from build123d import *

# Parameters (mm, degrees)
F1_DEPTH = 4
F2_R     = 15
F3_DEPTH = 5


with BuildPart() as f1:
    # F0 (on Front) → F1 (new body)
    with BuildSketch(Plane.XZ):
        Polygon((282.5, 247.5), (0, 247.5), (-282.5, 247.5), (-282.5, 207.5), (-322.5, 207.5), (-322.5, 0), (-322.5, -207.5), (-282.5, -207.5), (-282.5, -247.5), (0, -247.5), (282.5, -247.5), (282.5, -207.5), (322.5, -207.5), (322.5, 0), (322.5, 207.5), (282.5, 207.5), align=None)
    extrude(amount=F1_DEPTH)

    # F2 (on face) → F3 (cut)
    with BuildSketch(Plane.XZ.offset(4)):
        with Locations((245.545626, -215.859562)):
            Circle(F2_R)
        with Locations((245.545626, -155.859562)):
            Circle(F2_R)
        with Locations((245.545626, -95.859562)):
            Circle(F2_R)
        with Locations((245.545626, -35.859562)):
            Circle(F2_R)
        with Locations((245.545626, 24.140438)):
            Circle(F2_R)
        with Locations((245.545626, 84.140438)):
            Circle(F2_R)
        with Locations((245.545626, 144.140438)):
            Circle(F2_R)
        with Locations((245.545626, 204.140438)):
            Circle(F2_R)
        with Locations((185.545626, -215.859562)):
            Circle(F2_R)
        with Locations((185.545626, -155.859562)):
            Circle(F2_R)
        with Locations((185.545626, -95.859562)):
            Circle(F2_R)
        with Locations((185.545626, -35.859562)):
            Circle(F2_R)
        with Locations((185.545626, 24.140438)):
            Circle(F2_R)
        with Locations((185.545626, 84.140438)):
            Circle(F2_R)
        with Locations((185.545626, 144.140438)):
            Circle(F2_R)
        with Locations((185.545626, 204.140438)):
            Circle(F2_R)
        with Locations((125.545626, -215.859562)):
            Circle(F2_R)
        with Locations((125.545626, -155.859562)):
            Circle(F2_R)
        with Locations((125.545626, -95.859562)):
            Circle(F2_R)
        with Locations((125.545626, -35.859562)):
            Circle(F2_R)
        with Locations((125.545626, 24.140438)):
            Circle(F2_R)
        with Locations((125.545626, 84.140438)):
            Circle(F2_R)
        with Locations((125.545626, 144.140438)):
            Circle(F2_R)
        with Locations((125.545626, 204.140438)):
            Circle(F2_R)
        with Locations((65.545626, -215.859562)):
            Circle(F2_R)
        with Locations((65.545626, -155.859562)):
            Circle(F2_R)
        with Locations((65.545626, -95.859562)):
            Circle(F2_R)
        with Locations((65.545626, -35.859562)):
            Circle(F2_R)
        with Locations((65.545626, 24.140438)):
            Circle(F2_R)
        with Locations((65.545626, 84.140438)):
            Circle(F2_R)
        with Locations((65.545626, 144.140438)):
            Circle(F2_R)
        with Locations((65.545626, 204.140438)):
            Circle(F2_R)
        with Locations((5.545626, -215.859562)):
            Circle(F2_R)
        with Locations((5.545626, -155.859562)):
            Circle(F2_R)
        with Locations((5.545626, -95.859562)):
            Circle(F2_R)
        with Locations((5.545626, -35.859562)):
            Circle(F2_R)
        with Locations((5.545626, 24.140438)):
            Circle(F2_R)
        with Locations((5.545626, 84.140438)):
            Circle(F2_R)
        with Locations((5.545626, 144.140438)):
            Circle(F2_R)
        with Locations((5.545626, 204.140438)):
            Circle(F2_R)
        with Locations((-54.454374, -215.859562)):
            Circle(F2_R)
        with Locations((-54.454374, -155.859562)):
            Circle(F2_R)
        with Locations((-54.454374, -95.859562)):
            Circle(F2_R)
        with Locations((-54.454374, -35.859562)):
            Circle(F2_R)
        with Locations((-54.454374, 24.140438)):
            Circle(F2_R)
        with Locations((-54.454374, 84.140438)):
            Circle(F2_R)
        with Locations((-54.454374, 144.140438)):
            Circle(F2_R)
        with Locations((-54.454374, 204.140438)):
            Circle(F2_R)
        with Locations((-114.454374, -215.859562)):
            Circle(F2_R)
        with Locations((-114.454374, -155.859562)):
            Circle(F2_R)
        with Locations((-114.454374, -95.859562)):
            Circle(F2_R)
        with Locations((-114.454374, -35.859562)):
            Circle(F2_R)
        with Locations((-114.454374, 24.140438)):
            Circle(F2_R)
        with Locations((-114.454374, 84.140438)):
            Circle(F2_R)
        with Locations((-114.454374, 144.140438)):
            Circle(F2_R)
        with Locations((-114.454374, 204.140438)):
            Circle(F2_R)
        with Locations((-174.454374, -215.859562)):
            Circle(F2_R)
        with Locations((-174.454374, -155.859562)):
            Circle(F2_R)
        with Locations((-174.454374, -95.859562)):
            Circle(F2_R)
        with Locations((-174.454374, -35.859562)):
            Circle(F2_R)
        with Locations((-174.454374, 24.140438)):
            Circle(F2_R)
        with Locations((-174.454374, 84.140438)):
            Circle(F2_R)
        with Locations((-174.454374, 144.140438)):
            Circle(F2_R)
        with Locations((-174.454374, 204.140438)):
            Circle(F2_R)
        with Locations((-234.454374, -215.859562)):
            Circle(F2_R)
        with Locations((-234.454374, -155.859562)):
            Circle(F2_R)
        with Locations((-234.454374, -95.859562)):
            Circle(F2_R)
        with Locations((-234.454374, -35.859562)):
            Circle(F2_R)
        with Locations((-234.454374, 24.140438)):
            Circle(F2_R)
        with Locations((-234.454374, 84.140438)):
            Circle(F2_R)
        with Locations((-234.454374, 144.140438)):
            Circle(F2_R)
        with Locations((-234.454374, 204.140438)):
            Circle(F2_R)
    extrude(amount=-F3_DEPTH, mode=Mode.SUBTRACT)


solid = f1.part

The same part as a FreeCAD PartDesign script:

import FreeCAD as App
import Part
import Sketcher

V = App.Vector

doc = App.newDocument("Part")
body = doc.addObject("PartDesign::Body", "Body")

# Sketch on XZ plane
sketch1 = body.newObject("Sketcher::SketchObject", "Sketch")
sketch1.AttachmentSupport = (doc.getObject("XZ_Plane"), [""])
sketch1.MapMode = "FlatFace"
sketch1.addGeometry([
    Part.LineSegment(V(282.5, 247.5, 0), V(-282.5, 247.5, 0)),  # 0
    Part.LineSegment(V(-282.5, 247.5, 0), V(-282.5, 207.5, 0)),  # 1
    Part.LineSegment(V(-282.5, 207.5, 0), V(-322.5, 207.5, 0)),  # 2
    Part.LineSegment(V(-322.5, 207.5, 0), V(-322.5, -207.5, 0)),  # 3
    Part.LineSegment(V(-322.5, -207.5, 0), V(-282.5, -207.5, 0)),  # 4
    Part.LineSegment(V(-282.5, -207.5, 0), V(-282.5, -247.5, 0)),  # 5
    Part.LineSegment(V(-282.5, -247.5, 0), V(282.5, -247.5, 0)),  # 6
    Part.LineSegment(V(282.5, -247.5, 0), V(282.5, -207.5, 0)),  # 7
    Part.LineSegment(V(282.5, -207.5, 0), V(322.5, -207.5, 0)),  # 8
    Part.LineSegment(V(322.5, -207.5, 0), V(322.5, 207.5, 0)),  # 9
    Part.LineSegment(V(322.5, 207.5, 0), V(282.5, 207.5, 0)),  # 10
    Part.LineSegment(V(282.5, 207.5, 0), V(282.5, 247.5, 0)),  # 11
], False)
sketch1.addConstraint([
    Sketcher.Constraint("Coincident", 0, 2, 1, 1),
    Sketcher.Constraint("Coincident", 1, 2, 2, 1),
    Sketcher.Constraint("Coincident", 2, 2, 3, 1),
    Sketcher.Constraint("Coincident", 3, 2, 4, 1),
    Sketcher.Constraint("Coincident", 4, 2, 5, 1),
    Sketcher.Constraint("Coincident", 5, 2, 6, 1),
    Sketcher.Constraint("Coincident", 6, 2, 7, 1),
    Sketcher.Constraint("Coincident", 7, 2, 8, 1),
    Sketcher.Constraint("Coincident", 8, 2, 9, 1),
    Sketcher.Constraint("Coincident", 9, 2, 10, 1),
    Sketcher.Constraint("Coincident", 10, 2, 11, 1),
    Sketcher.Constraint("Coincident", 11, 2, 0, 1),
    Sketcher.Constraint("Horizontal", 0),
    Sketcher.Constraint("Vertical", 1),
    Sketcher.Constraint("Horizontal", 2),
    Sketcher.Constraint("Vertical", 3),
    Sketcher.Constraint("Horizontal", 4),
    Sketcher.Constraint("Vertical", 5),
    Sketcher.Constraint("Horizontal", 6),
    Sketcher.Constraint("Vertical", 7),
    Sketcher.Constraint("Horizontal", 8),
    Sketcher.Constraint("Vertical", 9),
    Sketcher.Constraint("Horizontal", 10),
    Sketcher.Constraint("Vertical", 11),
    Sketcher.Constraint("Symmetric", 0, 2, 6, 2, -1, 1),
    Sketcher.Constraint("Symmetric", 2, 2, 8, 2, -1, 1),
    Sketcher.Constraint("Symmetric", 4, 2, 10, 2, -1, 1),
    Sketcher.Constraint("Symmetric", 4, 2, 7, 2, -2),
    Sketcher.Constraint("Equal", 10, 1),
    Sketcher.Constraint("DistanceX", 0, 2, 0, 1, 565.0),
    Sketcher.Constraint("DistanceX", 2, 2, 2, 1, 40.0),
    Sketcher.Constraint("DistanceY", 3, 2, 3, 1, 415.0),
])
pad1 = body.newObject("PartDesign::Pad", "Pad")
pad1.Profile = sketch1
pad1.Length = 4

# Sketch on XZ plane
sketch2 = body.newObject("Sketcher::SketchObject", "Sketch001")
sketch2.AttachmentSupport = (doc.getObject("XZ_Plane"), [""])
sketch2.MapMode = "FlatFace"
sketch2.AttachmentOffset = App.Placement(V(0, 0, 4), App.Rotation())
sketch2.addGeometry([
    Part.Circle(V(245.545626, -215.859562, 0), V(0, 0, 1), 15),  # 0
    Part.Circle(V(245.545626, -155.859562, 0), V(0, 0, 1), 15),  # 1
    Part.Circle(V(245.545626, -95.859562, 0), V(0, 0, 1), 15),  # 2
    Part.Circle(V(245.545626, -35.859562, 0), V(0, 0, 1), 15),  # 3
    Part.Circle(V(245.545626, 24.140438, 0), V(0, 0, 1), 15),  # 4
    Part.Circle(V(245.545626, 84.140438, 0), V(0, 0, 1), 15),  # 5
    Part.Circle(V(245.545626, 144.140438, 0), V(0, 0, 1), 15),  # 6
    Part.Circle(V(245.545626, 204.140438, 0), V(0, 0, 1), 15),  # 7
    Part.Circle(V(185.545626, -215.859562, 0), V(0, 0, 1), 15),  # 8
    Part.Circle(V(185.545626, -155.859562, 0), V(0, 0, 1), 15),  # 9
    Part.Circle(V(185.545626, -95.859562, 0), V(0, 0, 1), 15),  # 10
    Part.Circle(V(185.545626, -35.859562, 0), V(0, 0, 1), 15),  # 11
    Part.Circle(V(185.545626, 24.140438, 0), V(0, 0, 1), 15),  # 12
    Part.Circle(V(185.545626, 84.140438, 0), V(0, 0, 1), 15),  # 13
    Part.Circle(V(185.545626, 144.140438, 0), V(0, 0, 1), 15),  # 14
    Part.Circle(V(185.545626, 204.140438, 0), V(0, 0, 1), 15),  # 15
    Part.Circle(V(125.545626, -215.859562, 0), V(0, 0, 1), 15),  # 16
    Part.Circle(V(125.545626, -155.859562, 0), V(0, 0, 1), 15),  # 17
    Part.Circle(V(125.545626, -95.859562, 0), V(0, 0, 1), 15),  # 18
    Part.Circle(V(125.545626, -35.859562, 0), V(0, 0, 1), 15),  # 19
    Part.Circle(V(125.545626, 24.140438, 0), V(0, 0, 1), 15),  # 20
    Part.Circle(V(125.545626, 84.140438, 0), V(0, 0, 1), 15),  # 21
    Part.Circle(V(125.545626, 144.140438, 0), V(0, 0, 1), 15),  # 22
    Part.Circle(V(125.545626, 204.140438, 0), V(0, 0, 1), 15),  # 23
    Part.Circle(V(65.545626, -215.859562, 0), V(0, 0, 1), 15),  # 24
    Part.Circle(V(65.545626, -155.859562, 0), V(0, 0, 1), 15),  # 25
    Part.Circle(V(65.545626, -95.859562, 0), V(0, 0, 1), 15),  # 26
    Part.Circle(V(65.545626, -35.859562, 0), V(0, 0, 1), 15),  # 27
    Part.Circle(V(65.545626, 24.140438, 0), V(0, 0, 1), 15),  # 28
    Part.Circle(V(65.545626, 84.140438, 0), V(0, 0, 1), 15),  # 29
    Part.Circle(V(65.545626, 144.140438, 0), V(0, 0, 1), 15),  # 30
    Part.Circle(V(65.545626, 204.140438, 0), V(0, 0, 1), 15),  # 31
    Part.Circle(V(5.545626, -215.859562, 0), V(0, 0, 1), 15),  # 32
    Part.Circle(V(5.545626, -155.859562, 0), V(0, 0, 1), 15),  # 33
    Part.Circle(V(5.545626, -95.859562, 0), V(0, 0, 1), 15),  # 34
    Part.Circle(V(5.545626, -35.859562, 0), V(0, 0, 1), 15),  # 35
    Part.Circle(V(5.545626, 24.140438, 0), V(0, 0, 1), 15),  # 36
    Part.Circle(V(5.545626, 84.140438, 0), V(0, 0, 1), 15),  # 37
    Part.Circle(V(5.545626, 144.140438, 0), V(0, 0, 1), 15),  # 38
    Part.Circle(V(5.545626, 204.140438, 0), V(0, 0, 1), 15),  # 39
    Part.Circle(V(-54.454374, -215.859562, 0), V(0, 0, 1), 15),  # 40
    Part.Circle(V(-54.454374, -155.859562, 0), V(0, 0, 1), 15),  # 41
    Part.Circle(V(-54.454374, -95.859562, 0), V(0, 0, 1), 15),  # 42
    Part.Circle(V(-54.454374, -35.859562, 0), V(0, 0, 1), 15),  # 43
    Part.Circle(V(-54.454374, 24.140438, 0), V(0, 0, 1), 15),  # 44
    Part.Circle(V(-54.454374, 84.140438, 0), V(0, 0, 1), 15),  # 45
    Part.Circle(V(-54.454374, 144.140438, 0), V(0, 0, 1), 15),  # 46
    Part.Circle(V(-54.454374, 204.140438, 0), V(0, 0, 1), 15),  # 47
    Part.Circle(V(-114.454374, -215.859562, 0), V(0, 0, 1), 15),  # 48
    Part.Circle(V(-114.454374, -155.859562, 0), V(0, 0, 1), 15),  # 49
    Part.Circle(V(-114.454374, -95.859562, 0), V(0, 0, 1), 15),  # 50
    Part.Circle(V(-114.454374, -35.859562, 0), V(0, 0, 1), 15),  # 51
    Part.Circle(V(-114.454374, 24.140438, 0), V(0, 0, 1), 15),  # 52
    Part.Circle(V(-114.454374, 84.140438, 0), V(0, 0, 1), 15),  # 53
    Part.Circle(V(-114.454374, 144.140438, 0), V(0, 0, 1), 15),  # 54
    Part.Circle(V(-114.454374, 204.140438, 0), V(0, 0, 1), 15),  # 55
    Part.Circle(V(-174.454374, -215.859562, 0), V(0, 0, 1), 15),  # 56
    Part.Circle(V(-174.454374, -155.859562, 0), V(0, 0, 1), 15),  # 57
    Part.Circle(V(-174.454374, -95.859562, 0), V(0, 0, 1), 15),  # 58
    Part.Circle(V(-174.454374, -35.859562, 0), V(0, 0, 1), 15),  # 59
    Part.Circle(V(-174.454374, 24.140438, 0), V(0, 0, 1), 15),  # 60
    Part.Circle(V(-174.454374, 84.140438, 0), V(0, 0, 1), 15),  # 61
    Part.Circle(V(-174.454374, 144.140438, 0), V(0, 0, 1), 15),  # 62
    Part.Circle(V(-174.454374, 204.140438, 0), V(0, 0, 1), 15),  # 63
    Part.Circle(V(-234.454374, -215.859562, 0), V(0, 0, 1), 15),  # 64
    Part.Circle(V(-234.454374, -155.859562, 0), V(0, 0, 1), 15),  # 65
    Part.Circle(V(-234.454374, -95.859562, 0), V(0, 0, 1), 15),  # 66
    Part.Circle(V(-234.454374, -35.859562, 0), V(0, 0, 1), 15),  # 67
    Part.Circle(V(-234.454374, 24.140438, 0), V(0, 0, 1), 15),  # 68
    Part.Circle(V(-234.454374, 84.140438, 0), V(0, 0, 1), 15),  # 69
    Part.Circle(V(-234.454374, 144.140438, 0), V(0, 0, 1), 15),  # 70
    Part.Circle(V(-234.454374, 204.140438, 0), V(0, 0, 1), 15),  # 71
], False)
sketch2.addConstraint([
    Sketcher.Constraint("Equal", 0, 1),
    Sketcher.Constraint("Equal", 1, 2),
    Sketcher.Constraint("Equal", 2, 3),
    Sketcher.Constraint("Equal", 3, 4),
    Sketcher.Constraint("Equal", 4, 5),
    Sketcher.Constraint("Equal", 5, 6),
    Sketcher.Constraint("Equal", 6, 7),
    Sketcher.Constraint("Equal", 7, 8),
    Sketcher.Constraint("Equal", 8, 9),
    Sketcher.Constraint("Equal", 9, 10),
    Sketcher.Constraint("Equal", 10, 11),
    Sketcher.Constraint("Equal", 11, 12),
    Sketcher.Constraint("Equal", 12, 13),
    Sketcher.Constraint("Equal", 13, 14),
    Sketcher.Constraint("Equal", 14, 15),
    Sketcher.Constraint("Equal", 15, 16),
    Sketcher.Constraint("Equal", 16, 17),
    Sketcher.Constraint("Equal", 17, 18),
    Sketcher.Constraint("Equal", 18, 19),
    Sketcher.Constraint("Equal", 19, 20),
    Sketcher.Constraint("Equal", 20, 21),
    Sketcher.Constraint("Equal", 21, 22),
    Sketcher.Constraint("Equal", 22, 23),
    Sketcher.Constraint("Equal", 23, 24),
    Sketcher.Constraint("Equal", 24, 25),
    Sketcher.Constraint("Equal", 25, 26),
    Sketcher.Constraint("Equal", 26, 27),
    Sketcher.Constraint("Equal", 27, 28),
    Sketcher.Constraint("Equal", 28, 29),
    Sketcher.Constraint("Equal", 29, 30),
    Sketcher.Constraint("Equal", 30, 31),
    Sketcher.Constraint("Equal", 31, 32),
    Sketcher.Constraint("Equal", 32, 33),
    Sketcher.Constraint("Equal", 33, 34),
    Sketcher.Constraint("Equal", 34, 35),
    Sketcher.Constraint("Equal", 35, 36),
    Sketcher.Constraint("Equal", 36, 37),
    Sketcher.Constraint("Equal", 37, 38),
    Sketcher.Constraint("Equal", 38, 39),
    Sketcher.Constraint("Equal", 39, 40),
    Sketcher.Constraint("Equal", 40, 41),
    Sketcher.Constraint("Equal", 41, 42),
    Sketcher.Constraint("Equal", 42, 43),
    Sketcher.Constraint("Equal", 43, 44),
    Sketcher.Constraint("Equal", 44, 45),
    Sketcher.Constraint("Equal", 45, 46),
    Sketcher.Constraint("Equal", 46, 47),
    Sketcher.Constraint("Equal", 47, 48),
    Sketcher.Constraint("Equal", 48, 49),
    Sketcher.Constraint("Equal", 49, 50),
    Sketcher.Constraint("Equal", 50, 51),
    Sketcher.Constraint("Equal", 51, 52),
    Sketcher.Constraint("Equal", 52, 53),
    Sketcher.Constraint("Equal", 53, 54),
    Sketcher.Constraint("Equal", 54, 55),
    Sketcher.Constraint("Equal", 55, 56),
    Sketcher.Constraint("Equal", 56, 57),
    Sketcher.Constraint("Equal", 57, 58),
    Sketcher.Constraint("Equal", 58, 59),
    Sketcher.Constraint("Equal", 59, 60),
    Sketcher.Constraint("Equal", 60, 61),
    Sketcher.Constraint("Equal", 61, 62),
    Sketcher.Constraint("Equal", 62, 63),
    Sketcher.Constraint("Equal", 63, 64),
    Sketcher.Constraint("Equal", 64, 65),
    Sketcher.Constraint("Equal", 65, 66),
    Sketcher.Constraint("Equal", 66, 67),
    Sketcher.Constraint("Equal", 67, 68),
    Sketcher.Constraint("Equal", 68, 69),
    Sketcher.Constraint("Equal", 69, 70),
    Sketcher.Constraint("Equal", 70, 71),
    Sketcher.Constraint("Horizontal", 0, 3, 8, 3),
    Sketcher.Constraint("Horizontal", 1, 3, 9, 3),
    Sketcher.Constraint("Horizontal", 2, 3, 10, 3),
    Sketcher.Constraint("Horizontal", 3, 3, 11, 3),
    Sketcher.Constraint("Horizontal", 4, 3, 12, 3),
    Sketcher.Constraint("Horizontal", 5, 3, 13, 3),
    Sketcher.Constraint("Horizontal", 6, 3, 14, 3),
    Sketcher.Constraint("Horizontal", 7, 3, 15, 3),
    Sketcher.Constraint("Horizontal", 8, 3, 16, 3),
    Sketcher.Constraint("Horizontal", 9, 3, 17, 3),
    Sketcher.Constraint("Horizontal", 10, 3, 18, 3),
    Sketcher.Constraint("Horizontal", 11, 3, 19, 3),
    Sketcher.Constraint("Horizontal", 12, 3, 20, 3),
    Sketcher.Constraint("Horizontal", 13, 3, 21, 3),
    Sketcher.Constraint("Horizontal", 14, 3, 22, 3),
    Sketcher.Constraint("Horizontal", 15, 3, 23, 3),
    Sketcher.Constraint("Horizontal", 16, 3, 24, 3),
    Sketcher.Constraint("Horizontal", 17, 3, 25, 3),
    Sketcher.Constraint("Horizontal", 18, 3, 26, 3),
    Sketcher.Constraint("Horizontal", 19, 3, 27, 3),
    Sketcher.Constraint("Horizontal", 20, 3, 28, 3),
    Sketcher.Constraint("Horizontal", 21, 3, 29, 3),
    Sketcher.Constraint("Horizontal", 22, 3, 30, 3),
    Sketcher.Constraint("Horizontal", 23, 3, 31, 3),
    Sketcher.Constraint("Horizontal", 24, 3, 32, 3),
    Sketcher.Constraint("Horizontal", 25, 3, 33, 3),
    Sketcher.Constraint("Horizontal", 26, 3, 34, 3),
    Sketcher.Constraint("Horizontal", 27, 3, 35, 3),
    Sketcher.Constraint("Horizontal", 28, 3, 36, 3),
    Sketcher.Constraint("Horizontal", 29, 3, 37, 3),
    Sketcher.Constraint("Horizontal", 30, 3, 38, 3),
    Sketcher.Constraint("Horizontal", 31, 3, 39, 3),
    Sketcher.Constraint("Horizontal", 32, 3, 40, 3),
    Sketcher.Constraint("Horizontal", 33, 3, 41, 3),
    Sketcher.Constraint("Horizontal", 34, 3, 42, 3),
    Sketcher.Constraint("Horizontal", 35, 3, 43, 3),
    Sketcher.Constraint("Horizontal", 36, 3, 44, 3),
    Sketcher.Constraint("Horizontal", 37, 3, 45, 3),
    Sketcher.Constraint("Horizontal", 38, 3, 46, 3),
    Sketcher.Constraint("Horizontal", 39, 3, 47, 3),
    Sketcher.Constraint("Horizontal", 40, 3, 48, 3),
    Sketcher.Constraint("Horizontal", 41, 3, 49, 3),
    Sketcher.Constraint("Horizontal", 42, 3, 50, 3),
    Sketcher.Constraint("Horizontal", 43, 3, 51, 3),
    Sketcher.Constraint("Horizontal", 44, 3, 52, 3),
    Sketcher.Constraint("Horizontal", 45, 3, 53, 3),
    Sketcher.Constraint("Horizontal", 46, 3, 54, 3),
    Sketcher.Constraint("Horizontal", 47, 3, 55, 3),
    Sketcher.Constraint("Horizontal", 48, 3, 56, 3),
    Sketcher.Constraint("Horizontal", 49, 3, 57, 3),
    Sketcher.Constraint("Horizontal", 50, 3, 58, 3),
    Sketcher.Constraint("Horizontal", 51, 3, 59, 3),
    Sketcher.Constraint("Horizontal", 52, 3, 60, 3),
    Sketcher.Constraint("Horizontal", 53, 3, 61, 3),
    Sketcher.Constraint("Horizontal", 54, 3, 62, 3),
    Sketcher.Constraint("Horizontal", 55, 3, 63, 3),
    Sketcher.Constraint("Horizontal", 56, 3, 64, 3),
    Sketcher.Constraint("Horizontal", 57, 3, 65, 3),
    Sketcher.Constraint("Horizontal", 58, 3, 66, 3),
    Sketcher.Constraint("Horizontal", 59, 3, 67, 3),
    Sketcher.Constraint("Horizontal", 60, 3, 68, 3),
    Sketcher.Constraint("Horizontal", 61, 3, 69, 3),
    Sketcher.Constraint("Horizontal", 62, 3, 70, 3),
    Sketcher.Constraint("Horizontal", 63, 3, 71, 3),
    Sketcher.Constraint("Vertical", 0, 3, 1, 3),
    Sketcher.Constraint("Vertical", 1, 3, 2, 3),
    Sketcher.Constraint("Vertical", 2, 3, 3, 3),
    Sketcher.Constraint("Vertical", 3, 3, 4, 3),
    Sketcher.Constraint("Vertical", 4, 3, 5, 3),
    Sketcher.Constraint("Vertical", 5, 3, 6, 3),
    Sketcher.Constraint("Vertical", 6, 3, 7, 3),
    Sketcher.Constraint("Vertical", 8, 3, 9, 3),
    Sketcher.Constraint("Vertical", 9, 3, 10, 3),
    Sketcher.Constraint("Vertical", 10, 3, 11, 3),
    Sketcher.Constraint("Vertical", 11, 3, 12, 3),
    Sketcher.Constraint("Vertical", 12, 3, 13, 3),
    Sketcher.Constraint("Vertical", 13, 3, 14, 3),
    Sketcher.Constraint("Vertical", 14, 3, 15, 3),
    Sketcher.Constraint("Vertical", 16, 3, 17, 3),
    Sketcher.Constraint("Vertical", 17, 3, 18, 3),
    Sketcher.Constraint("Vertical", 18, 3, 19, 3),
    Sketcher.Constraint("Vertical", 19, 3, 20, 3),
    Sketcher.Constraint("Vertical", 20, 3, 21, 3),
    Sketcher.Constraint("Vertical", 21, 3, 22, 3),
    Sketcher.Constraint("Vertical", 22, 3, 23, 3),
    Sketcher.Constraint("Vertical", 24, 3, 25, 3),
    Sketcher.Constraint("Vertical", 25, 3, 26, 3),
    Sketcher.Constraint("Vertical", 26, 3, 27, 3),
    Sketcher.Constraint("Vertical", 27, 3, 28, 3),
    Sketcher.Constraint("Vertical", 28, 3, 29, 3),
    Sketcher.Constraint("Vertical", 29, 3, 30, 3),
    Sketcher.Constraint("Vertical", 30, 3, 31, 3),
    Sketcher.Constraint("Vertical", 32, 3, 33, 3),
    Sketcher.Constraint("Vertical", 33, 3, 34, 3),
    Sketcher.Constraint("Vertical", 34, 3, 35, 3),
    Sketcher.Constraint("Vertical", 35, 3, 36, 3),
    Sketcher.Constraint("Vertical", 36, 3, 37, 3),
    Sketcher.Constraint("Vertical", 37, 3, 38, 3),
    Sketcher.Constraint("Vertical", 38, 3, 39, 3),
    Sketcher.Constraint("Vertical", 40, 3, 41, 3),
    Sketcher.Constraint("Vertical", 41, 3, 42, 3),
    Sketcher.Constraint("Vertical", 42, 3, 43, 3),
    Sketcher.Constraint("Vertical", 43, 3, 44, 3),
    Sketcher.Constraint("Vertical", 44, 3, 45, 3),
    Sketcher.Constraint("Vertical", 45, 3, 46, 3),
    Sketcher.Constraint("Vertical", 46, 3, 47, 3),
    Sketcher.Constraint("Vertical", 48, 3, 49, 3),
    Sketcher.Constraint("Vertical", 49, 3, 50, 3),
    Sketcher.Constraint("Vertical", 50, 3, 51, 3),
    Sketcher.Constraint("Vertical", 51, 3, 52, 3),
    Sketcher.Constraint("Vertical", 52, 3, 53, 3),
    Sketcher.Constraint("Vertical", 53, 3, 54, 3),
    Sketcher.Constraint("Vertical", 54, 3, 55, 3),
    Sketcher.Constraint("Vertical", 56, 3, 57, 3),
    Sketcher.Constraint("Vertical", 57, 3, 58, 3),
    Sketcher.Constraint("Vertical", 58, 3, 59, 3),
    Sketcher.Constraint("Vertical", 59, 3, 60, 3),
    Sketcher.Constraint("Vertical", 60, 3, 61, 3),
    Sketcher.Constraint("Vertical", 61, 3, 62, 3),
    Sketcher.Constraint("Vertical", 62, 3, 63, 3),
    Sketcher.Constraint("Vertical", 64, 3, 65, 3),
    Sketcher.Constraint("Vertical", 65, 3, 66, 3),
    Sketcher.Constraint("Vertical", 66, 3, 67, 3),
    Sketcher.Constraint("Vertical", 67, 3, 68, 3),
    Sketcher.Constraint("Vertical", 68, 3, 69, 3),
    Sketcher.Constraint("Vertical", 69, 3, 70, 3),
    Sketcher.Constraint("Vertical", 70, 3, 71, 3),
    Sketcher.Constraint("Diameter", 0, 30.0),
    Sketcher.Constraint("DistanceY", 2, 3, -1, 1, 95.859562),
    Sketcher.Constraint("DistanceY", 3, 3, -1, 1, 35.859562),
    Sketcher.Constraint("DistanceY", -1, 1, 5, 3, 84.140438),
    Sketcher.Constraint("DistanceX", -1, 1, 0, 3, 245.545626),
    Sketcher.Constraint("DistanceY", 0, 3, -1, 1, 215.859562),
    Sketcher.Constraint("DistanceY", 1, 3, -1, 1, 155.859562),
    Sketcher.Constraint("DistanceY", -1, 1, 4, 3, 24.140438),
    Sketcher.Constraint("DistanceY", -1, 1, 6, 3, 144.140438),
    Sketcher.Constraint("DistanceY", -1, 1, 7, 3, 204.140438),
    Sketcher.Constraint("DistanceX", -1, 1, 8, 3, 185.545626),
    Sketcher.Constraint("DistanceX", -1, 1, 16, 3, 125.545626),
    Sketcher.Constraint("DistanceX", -1, 1, 24, 3, 65.545626),
    Sketcher.Constraint("DistanceX", -1, 1, 32, 3, 5.545626),
    Sketcher.Constraint("DistanceX", 40, 3, -1, 1, 54.454374),
    Sketcher.Constraint("DistanceX", 48, 3, -1, 1, 114.454374),
    Sketcher.Constraint("DistanceX", 56, 3, -1, 1, 174.454374),
    Sketcher.Constraint("DistanceX", 64, 3, -1, 1, 234.454374),
])
pocket1 = body.newObject("PartDesign::Pocket", "Pocket")
pocket1.Profile = sketch2
pocket1.Length = 5

doc.recompute()
